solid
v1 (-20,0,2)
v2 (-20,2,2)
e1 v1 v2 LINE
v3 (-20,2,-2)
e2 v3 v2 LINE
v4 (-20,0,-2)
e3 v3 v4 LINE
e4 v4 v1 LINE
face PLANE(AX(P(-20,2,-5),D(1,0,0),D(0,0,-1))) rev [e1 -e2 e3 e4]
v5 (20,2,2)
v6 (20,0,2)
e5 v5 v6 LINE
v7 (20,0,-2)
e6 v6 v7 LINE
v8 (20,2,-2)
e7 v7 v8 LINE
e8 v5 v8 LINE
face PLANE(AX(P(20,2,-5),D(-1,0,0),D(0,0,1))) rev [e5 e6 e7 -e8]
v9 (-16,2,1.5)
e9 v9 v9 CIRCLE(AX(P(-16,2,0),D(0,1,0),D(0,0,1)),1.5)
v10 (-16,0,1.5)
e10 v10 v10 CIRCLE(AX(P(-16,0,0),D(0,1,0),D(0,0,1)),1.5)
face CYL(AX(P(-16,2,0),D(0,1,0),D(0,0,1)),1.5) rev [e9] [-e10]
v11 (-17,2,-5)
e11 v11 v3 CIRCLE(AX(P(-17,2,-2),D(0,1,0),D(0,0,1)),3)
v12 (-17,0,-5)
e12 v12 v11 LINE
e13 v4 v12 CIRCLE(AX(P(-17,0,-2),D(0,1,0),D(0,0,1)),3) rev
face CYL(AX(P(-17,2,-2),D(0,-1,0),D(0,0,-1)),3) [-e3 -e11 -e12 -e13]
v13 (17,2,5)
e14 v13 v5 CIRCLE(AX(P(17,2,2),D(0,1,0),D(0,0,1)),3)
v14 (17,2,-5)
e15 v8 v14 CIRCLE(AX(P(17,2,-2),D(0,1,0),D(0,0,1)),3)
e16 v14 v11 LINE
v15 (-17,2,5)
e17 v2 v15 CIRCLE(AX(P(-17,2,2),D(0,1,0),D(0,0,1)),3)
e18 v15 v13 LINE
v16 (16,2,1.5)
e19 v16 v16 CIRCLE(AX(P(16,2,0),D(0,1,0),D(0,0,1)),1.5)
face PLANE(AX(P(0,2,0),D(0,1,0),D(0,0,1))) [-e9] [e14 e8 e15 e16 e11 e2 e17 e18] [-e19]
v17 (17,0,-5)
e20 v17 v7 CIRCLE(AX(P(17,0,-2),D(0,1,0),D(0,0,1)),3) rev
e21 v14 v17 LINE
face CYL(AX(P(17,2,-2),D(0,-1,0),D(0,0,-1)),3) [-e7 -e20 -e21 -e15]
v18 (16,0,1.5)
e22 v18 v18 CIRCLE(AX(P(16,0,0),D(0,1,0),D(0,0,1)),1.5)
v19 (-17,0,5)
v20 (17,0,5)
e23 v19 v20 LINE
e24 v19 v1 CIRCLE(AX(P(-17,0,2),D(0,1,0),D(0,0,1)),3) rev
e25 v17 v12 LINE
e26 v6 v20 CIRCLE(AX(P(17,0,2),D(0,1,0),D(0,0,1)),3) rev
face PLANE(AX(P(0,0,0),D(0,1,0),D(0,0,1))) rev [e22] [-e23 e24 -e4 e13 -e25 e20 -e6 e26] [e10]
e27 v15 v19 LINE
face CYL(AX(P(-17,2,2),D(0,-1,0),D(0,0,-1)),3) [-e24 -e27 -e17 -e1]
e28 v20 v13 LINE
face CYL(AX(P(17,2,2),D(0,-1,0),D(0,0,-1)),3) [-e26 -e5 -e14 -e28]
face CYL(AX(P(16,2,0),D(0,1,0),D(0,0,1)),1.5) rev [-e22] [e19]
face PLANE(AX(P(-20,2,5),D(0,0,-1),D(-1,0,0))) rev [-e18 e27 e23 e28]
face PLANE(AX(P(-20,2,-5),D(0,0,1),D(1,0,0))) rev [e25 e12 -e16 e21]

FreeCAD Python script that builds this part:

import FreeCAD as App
import Part
import Sketcher

V = App.Vector


def edges_at(feature, points):
    """Names of the edges that pass closest to the given points."""
    edges = feature.Shape.Edges
    near = lambda p: min(range(len(edges)), key=lambda i: edges[i].distToShape(Part.Vertex(*p))[0])
    return sorted({f"Edge{near(p) + 1}" for p in points})

doc = App.newDocument("Part")
body = doc.addObject("PartDesign::Body", "Body")

sketch1 = body.newObject("Sketcher::SketchObject", "Sketch")
sketch1.AttachmentSupport = (doc.getObject("XZ_Plane"), [""])
sketch1.MapMode = "FlatFace"
sketch1.addGeometry(Part.LineSegment(V(-20, -5, 0), V(-20, 5, 0)), False)
sketch1.addGeometry(Part.LineSegment(V(-20, 5, 0), V(20, 5, 0)), False)
sketch1.addGeometry(Part.LineSegment(V(20, 5, 0), V(20, -5, 0)), False)
sketch1.addGeometry(Part.LineSegment(V(20, -5, 0), V(-20, -5, 0)), False)
sketch1.addConstraint(Sketcher.Constraint("Coincident", 0, 2, 1, 1))
sketch1.addConstraint(Sketcher.Constraint("Coincident", 1, 2, 2, 1))
sketch1.addConstraint(Sketcher.Constraint("Coincident", 2, 2, 3, 1))
sketch1.addConstraint(Sketcher.Constraint("Coincident", 3, 2, 0, 1))
sketch1.addConstraint(Sketcher.Constraint("Vertical", 0))
sketch1.addConstraint(Sketcher.Constraint("Horizontal", 1))
sketch1.addConstraint(Sketcher.Constraint("Vertical", 2))
sketch1.addConstraint(Sketcher.Constraint("Horizontal", 3))
sketch1.addConstraint(Sketcher.Constraint("Symmetric", 0, 2, 2, 2, -1, 1))
sketch1.addConstraint(Sketcher.Constraint("DistanceX", 1, 1, 1, 2, 40.0))
sketch1.addConstraint(Sketcher.Constraint("DistanceY", 0, 1, 0, 2, 10.0))
pad1 = body.newObject("PartDesign::Pad", "Pad")
pad1.Profile = sketch1
pad1.Length = 2
pad1.Reversed = True
doc.recompute()

fillet = body.newObject("PartDesign::Fillet", "Fillet")
fillet.Base = (pad1, edges_at(pad1, [
    (20, 1, 5),
    (-20, 1, 5),
    (-20, 1, -5),
    (20, 1, -5),
]))
fillet.Radius = 3

sketch2 = body.newObject("Sketcher::SketchObject", "Sketch001")
sketch2.AttachmentSupport = (doc.getObject("XZ_Plane"), [""])
sketch2.MapMode = "FlatFace"
sketch2.AttachmentOffset = App.Placement(V(0, 0, -2), App.Rotation())
sketch2.addGeometry(Part.Circle(V(16, 0, 0), V(0, 0, 1), 1.5), False)
sketch2.addGeometry(Part.Circle(V(-16, 0, 0), V(0, 0, 1), 1.5), False)
sketch2.addConstraint(Sketcher.Constraint("Equal", 0, 1))
sketch2.addConstraint(Sketcher.Constraint("Symmetric", 0, 3, 1, 3, -1, 1))
sketch2.addConstraint(Sketcher.Constraint("PointOnObject", 0, 3, -1))
sketch2.addConstraint(Sketcher.Constraint("Diameter", 0, 3.0))
sketch2.addConstraint(Sketcher.Constraint("DistanceX", -1, 1, 0, 3, 16.0))
doc.recompute()
hole = body.newObject("PartDesign::Hole", "Hole")
hole.Profile = sketch2
hole.ThreadType = "None"
hole.Diameter = 3
hole.DepthType = "ThroughAll"
hole.Reversed = True

doc.recompute()
